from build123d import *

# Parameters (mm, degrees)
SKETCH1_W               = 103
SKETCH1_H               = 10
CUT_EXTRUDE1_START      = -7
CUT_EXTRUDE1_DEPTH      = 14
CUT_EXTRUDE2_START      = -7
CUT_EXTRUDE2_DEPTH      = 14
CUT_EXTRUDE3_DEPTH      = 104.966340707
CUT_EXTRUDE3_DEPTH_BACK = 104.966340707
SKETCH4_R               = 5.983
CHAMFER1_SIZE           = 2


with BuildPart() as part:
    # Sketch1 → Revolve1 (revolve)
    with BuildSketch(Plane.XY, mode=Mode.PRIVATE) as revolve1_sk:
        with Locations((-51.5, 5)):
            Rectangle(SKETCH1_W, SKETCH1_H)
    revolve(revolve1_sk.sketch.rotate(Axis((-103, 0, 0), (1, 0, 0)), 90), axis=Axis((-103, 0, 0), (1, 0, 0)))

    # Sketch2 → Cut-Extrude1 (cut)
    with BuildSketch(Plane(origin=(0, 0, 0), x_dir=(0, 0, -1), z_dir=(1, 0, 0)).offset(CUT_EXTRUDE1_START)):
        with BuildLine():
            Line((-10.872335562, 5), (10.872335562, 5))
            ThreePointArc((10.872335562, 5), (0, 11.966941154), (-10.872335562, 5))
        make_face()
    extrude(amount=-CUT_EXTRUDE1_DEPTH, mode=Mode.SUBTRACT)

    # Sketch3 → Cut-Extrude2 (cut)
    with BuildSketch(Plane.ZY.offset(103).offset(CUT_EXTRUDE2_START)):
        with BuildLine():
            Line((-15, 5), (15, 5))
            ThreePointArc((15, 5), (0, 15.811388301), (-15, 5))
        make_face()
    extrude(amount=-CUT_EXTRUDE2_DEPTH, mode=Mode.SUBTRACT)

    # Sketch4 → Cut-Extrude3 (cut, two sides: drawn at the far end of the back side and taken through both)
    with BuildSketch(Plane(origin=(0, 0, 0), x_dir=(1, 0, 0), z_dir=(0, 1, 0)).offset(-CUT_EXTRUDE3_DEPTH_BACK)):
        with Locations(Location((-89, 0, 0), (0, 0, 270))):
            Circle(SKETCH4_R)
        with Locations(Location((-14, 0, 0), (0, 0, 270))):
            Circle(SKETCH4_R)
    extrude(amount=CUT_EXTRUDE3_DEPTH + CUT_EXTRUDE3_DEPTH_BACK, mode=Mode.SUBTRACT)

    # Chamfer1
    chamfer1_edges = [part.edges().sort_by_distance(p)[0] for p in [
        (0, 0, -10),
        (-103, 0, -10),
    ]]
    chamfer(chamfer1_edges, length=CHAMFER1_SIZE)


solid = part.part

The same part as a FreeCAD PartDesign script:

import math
import FreeCAD as App
import Part
import Sketcher
Q = App.Units.Quantity


def edges_at(feature, points):
    """Names of the edges that pass closest to the given points."""
    edges = feature.Shape.Edges
    near = lambda p: min(range(len(edges)), key=lambda i: edges[i].distToShape(Part.Vertex(*p))[0])
    return sorted({f"Edge{near(p) + 1}" for p in points})


def add_polygon(sketch, points):
    """Adds a closed chain of lines whose ends are joined by coincident constraints."""
    first, n = sketch.GeometryCount, len(points)
    for a, b in zip(points, points[1:] + points[:1]):
        sketch.addGeometry(Part.LineSegment(App.Vector(*a, 0), App.Vector(*b, 0)), False)
    for i in range(n):
        sketch.addConstraint(Sketcher.Constraint("Coincident", first + i, 2, first + (i + 1) % n, 1))

doc = App.newDocument("Part")
params = doc.addObject("Spreadsheet::Sheet", "Params")
for row, (alias, value) in enumerate([
    ("sketch1_width", "103 mm"),
    ("sketch1_height", "10 mm"),
    ("revolution_angle", "360 deg"),
    ("pocket1_length", "14 mm"),
    ("sketch3_height", "30 mm"),
    ("pocket2_length", "14 mm"),
    ("chamfer_size", "2 mm"),
], start=1):
    params.set(f"A{row}", alias)
    params.set(f"B{row}", "=" + value)
    params.setAlias(f"B{row}", alias)

body = doc.addObject("PartDesign::Body", "Body")

# Sketch on XY plane
sketch1 = doc.addObject("Sketcher::SketchObject", "Sketch")
body.addObject(sketch1)
sketch1.AttachmentSupport = (doc.XY_Plane, [""])
sketch1.MapMode = "FlatFace"
add_polygon(sketch1, [(-103, 10), (-103, 0), (0, 0), (0, 10)])  # lines 0-3
sketch1.addConstraint([
    Sketcher.Constraint("Vertical", 0),
    Sketcher.Constraint("Horizontal", 1),
    Sketcher.Constraint("Vertical", 2),
    Sketcher.Constraint("Horizontal", 3),
    Sketcher.Constraint("Coincident", 1, 2, -1, 1),
    Sketcher.Constraint("DistanceX", 1, 1, 1, 2, Q("103 mm")),
    Sketcher.Constraint("DistanceY", 0, 2, 0, 1, Q("10 mm")),
])
sketch1.setExpression("Constraints[9]", "Params.sketch1_width")
sketch1.setExpression("Constraints[10]", "Params.sketch1_height")
revolution = doc.addObject("PartDesign::Revolution", "Revolution")
body.addObject(revolution)
revolution.Profile = sketch1
revolution.ReferenceAxis = (sketch1, ["H_Axis"])
revolution.setExpression("Angle", "Params.revolution_angle")

# Sketch on YZ plane
sketch2 = doc.addObject("Sketcher::SketchObject", "Sketch001")
body.addObject(sketch2)
sketch2.AttachmentSupport = (doc.YZ_Plane, [""])
sketch2.MapMode = "FlatFace"
sketch2.AttachmentOffset = App.Placement(App.Vector(0, 0, -7), App.Rotation())
sketch2.addGeometry([
    Part.LineSegment(App.Vector(5, 10.872336, 0), App.Vector(5, -10.872336, 0)),
    Part.ArcOfCircle(Part.Circle(App.Vector(0, 0, 0), App.Vector(0, 0, 1), 11.966941), math.radians(-65.303113), math.radians(65.303113)),
], False)
sketch2.addConstraint([
    Sketcher.Constraint("Coincident", 0, 1, 1, 2),
    Sketcher.Constraint("Coincident", 1, 1, 0, 2),
    Sketcher.Constraint("Vertical", 0),
    Sketcher.Constraint("Coincident", 1, 3, -1, 1),
    Sketcher.Constraint("DistanceX", -1, 1, 0, 1, Q("5 mm")),
    Sketcher.Constraint("Radius", 1, Q("11.966941 mm")),
])
pocket1 = doc.addObject("PartDesign::Pocket", "Pocket")
body.addObject(pocket1)
pocket1.Profile = sketch2
pocket1.setExpression("Length", "Params.pocket1_length")

# Sketch on YZ plane
sketch3 = doc.addObject("Sketcher::SketchObject", "Sketch002")
body.addObject(sketch3)
sketch3.AttachmentSupport = (doc.YZ_Plane, [""])
sketch3.MapMode = "FlatFace"
sketch3.AttachmentOffset = App.Placement(App.Vector(0, 0, -96), App.Rotation())
sketch3.addGeometry([
    Part.LineSegment(App.Vector(5, -15, 0), App.Vector(5, 15, 0)),
    Part.ArcOfCircle(Part.Circle(App.Vector(0, 0, 0), App.Vector(0, 0, 1), 15.811388), math.radians(-71.565051), math.radians(71.565051)),
], False)
sketch3.addConstraint([
    Sketcher.Constraint("Coincident", 0, 1, 1, 1),
    Sketcher.Constraint("Coincident", 1, 2, 0, 2),
    Sketcher.Constraint("Vertical", 0),
    Sketcher.Constraint("Coincident", 1, 3, -1, 1),
    Sketcher.Constraint("DistanceY", 0, 1, 0, 2, Q("30 mm")),
    Sketcher.Constraint("DistanceX", -1, 1, 0, 1, Q("5 mm")),
])
sketch3.setExpression("Constraints[4]", "Params.sketch3_height")
pocket2 = doc.addObject("PartDesign::Pocket", "Pocket001")
body.addObject(pocket2)
pocket2.Profile = sketch3
pocket2.setExpression("Length", "Params.pocket2_length")
pocket2.Reversed = True

# Sketch on XZ plane
sketch4 = doc.addObject("Sketcher::SketchObject", "Sketch003")
body.addObject(sketch4)
sketch4.AttachmentSupport = (doc.XZ_Plane, [""])
sketch4.MapMode = "FlatFace"
sketch4.addGeometry([
    Part.Circle(App.Vector(-89, 0, 0), App.Vector(0, 0, 1), 5.983),
    Part.Circle(App.Vector(-14, 0, 0), App.Vector(0, 0, 1), 5.983),
], False)
sketch4.addConstraint([
    Sketcher.Constraint("Equal", 0, 1),
    Sketcher.Constraint("PointOnObject", 0, 3, -1),
    Sketcher.Constraint("PointOnObject", 1, 3, -1),
    Sketcher.Constraint("Diameter", 0, Q("11.966 mm")),
    Sketcher.Constraint("DistanceX", 0, 3, -1, 1, Q("89 mm")),
    Sketcher.Constraint("DistanceX", 1, 3, -1, 1, Q("14 mm")),
])
pocket3 = doc.addObject("PartDesign::Pocket", "Pocket002")
body.addObject(pocket3)
pocket3.Profile = sketch4
pocket3.Type = "ThroughAll"
pocket3.Midplane = True
doc.recompute()

chamfer = doc.addObject("PartDesign::Chamfer", "Chamfer")
body.addObject(chamfer)
chamfer.Base = (pocket3, edges_at(pocket3, [(0, 0, -10), (-103, 0, -10)]))
chamfer.setExpression("Size", "Params.chamfer_size")

doc.recompute()
